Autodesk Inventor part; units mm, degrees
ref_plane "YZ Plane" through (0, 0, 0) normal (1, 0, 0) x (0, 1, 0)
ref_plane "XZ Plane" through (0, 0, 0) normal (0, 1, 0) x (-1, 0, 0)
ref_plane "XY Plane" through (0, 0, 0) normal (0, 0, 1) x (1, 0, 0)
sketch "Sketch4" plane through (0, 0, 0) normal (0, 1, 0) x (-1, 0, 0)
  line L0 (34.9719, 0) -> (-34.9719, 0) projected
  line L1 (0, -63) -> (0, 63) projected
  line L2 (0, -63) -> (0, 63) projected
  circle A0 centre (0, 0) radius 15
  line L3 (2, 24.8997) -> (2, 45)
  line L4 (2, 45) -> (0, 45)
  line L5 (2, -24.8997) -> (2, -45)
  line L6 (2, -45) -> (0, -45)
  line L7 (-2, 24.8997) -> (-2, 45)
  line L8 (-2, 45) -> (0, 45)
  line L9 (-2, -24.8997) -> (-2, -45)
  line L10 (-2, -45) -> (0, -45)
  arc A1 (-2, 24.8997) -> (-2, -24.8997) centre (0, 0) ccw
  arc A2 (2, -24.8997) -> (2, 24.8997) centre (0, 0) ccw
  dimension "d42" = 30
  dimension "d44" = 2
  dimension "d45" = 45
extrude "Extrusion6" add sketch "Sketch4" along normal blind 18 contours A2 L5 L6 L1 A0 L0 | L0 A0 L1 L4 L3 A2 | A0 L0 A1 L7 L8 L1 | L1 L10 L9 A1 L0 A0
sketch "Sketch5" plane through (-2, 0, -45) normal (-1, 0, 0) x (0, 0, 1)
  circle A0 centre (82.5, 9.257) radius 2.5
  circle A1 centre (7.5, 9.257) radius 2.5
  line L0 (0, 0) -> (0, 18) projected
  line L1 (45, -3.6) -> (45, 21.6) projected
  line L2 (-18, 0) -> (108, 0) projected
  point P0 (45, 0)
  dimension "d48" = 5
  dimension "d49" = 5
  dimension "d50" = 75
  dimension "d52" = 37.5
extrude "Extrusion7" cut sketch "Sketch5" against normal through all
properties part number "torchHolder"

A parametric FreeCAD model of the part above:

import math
import FreeCAD as App
import Part
import Sketcher
from FreeCAD import Vector

doc = App.newDocument("Part")
body = doc.addObject("PartDesign::Body", "Body")

# Sketch on XZ plane
sketch1 = body.newObject("Sketcher::SketchObject", "Sketch")
sketch1.AttachmentSupport = (doc.getObject("XZ_Plane"), [""])
sketch1.MapMode = "FlatFace"
sketch1.addGeometry([
    Part.ArcOfCircle(Part.Circle(Vector(0, 0, 0), Vector(0, 0, 1), 24.979893), math.radians(94.592267), math.radians(265.407733)),  # 0
    Part.LineSegment(Vector(-2, 24.8997, 0), Vector(-2, 45, 0)),  # 1
    Part.LineSegment(Vector(-2, 45, 0), Vector(2, 45, 0)),  # 2
    Part.LineSegment(Vector(2, 45, 0), Vector(2, 24.8997, 0)),  # 3
    Part.ArcOfCircle(Part.Circle(Vector(0, 0, 0), Vector(0, 0, 1), 24.979893), math.radians(-85.407733), math.radians(85.407733)),  # 4
    Part.LineSegment(Vector(2, -24.8997, 0), Vector(2, -45, 0)),  # 5
    Part.LineSegment(Vector(2, -45, 0), Vector(-2, -45, 0)),  # 6
    Part.LineSegment(Vector(-2, -45, 0), Vector(-2, -24.8997, 0)),  # 7
    Part.Circle(Vector(0, 0, 0), Vector(0, 0, 1), 15),  # 8
], False)
sketch1.addConstraint([
    Sketcher.Constraint("Coincident", 0, 1, 1, 1),
    Sketcher.Constraint("Coincident", 1, 2, 2, 1),
    Sketcher.Constraint("Coincident", 2, 2, 3, 1),
    Sketcher.Constraint("Coincident", 3, 2, 4, 2),
    Sketcher.Constraint("Coincident", 4, 1, 5, 1),
    Sketcher.Constraint("Coincident", 5, 2, 6, 1),
    Sketcher.Constraint("Coincident", 6, 2, 7, 1),
    Sketcher.Constraint("Coincident", 7, 2, 0, 2),
    Sketcher.Constraint("Vertical", 1),
    Sketcher.Constraint("Horizontal", 2),
    Sketcher.Constraint("Vertical", 3),
    Sketcher.Constraint("Vertical", 5),
    Sketcher.Constraint("Horizontal", 6),
    Sketcher.Constraint("Vertical", 7),
    Sketcher.Constraint("Coincident", 0, 3, -1, 1),
    Sketcher.Constraint("Coincident", 4, 3, -1, 1),
    Sketcher.Constraint("Coincident", 8, 3, -1, 1),
    Sketcher.Constraint("Equal", 0, 4),
    Sketcher.Constraint("Symmetric", 1, 2, 5, 2, -1, 1),
    Sketcher.Constraint("Horizontal", 0, 1, 3, 2),
    Sketcher.Constraint("Horizontal", 4, 1, 7, 2),
    Sketcher.Constraint("Diameter", 8, 30.0),
    Sketcher.Constraint("DistanceX", 0, 1, -1, 1, 2.0),
    Sketcher.Constraint("DistanceY", -1, 1, 1, 2, 45.0),
    Sketcher.Constraint("Radius", 0, 24.98),
])
pad1 = body.newObject("PartDesign::Pad", "Pad")
pad1.Profile = sketch1
pad1.Length = 18
pad1.Reversed = True

# Sketch on YZ plane
sketch2 = body.newObject("Sketcher::SketchObject", "Sketch001")
sketch2.AttachmentSupport = (doc.getObject("YZ_Plane"), [""])
sketch2.MapMode = "FlatFace"
sketch2.AttachmentOffset = App.Placement(Vector(0, 0, -2), App.Rotation())
sketch2.addGeometry([
    Part.Circle(Vector(9.257, 37.5, 0), Vector(0, 0, 1), 2.5),
    Part.Circle(Vector(9.257, -37.5, 0), Vector(0, 0, 1), 2.5),
], False)
sketch2.addConstraint([
    Sketcher.Constraint("Equal", 0, 1),
    Sketcher.Constraint("Symmetric", 0, 3, 1, 3, -1),
    Sketcher.Constraint("Diameter", 0, 5.0),
    Sketcher.Constraint("DistanceY", 1, 3, 0, 3, 75.0),
    Sketcher.Constraint("DistanceX", -1, 1, 0, 3, 9.257),
])
pocket1 = body.newObject("PartDesign::Pocket", "Pocket")
pocket1.Profile = sketch2
pocket1.Type = "ThroughAll"
pocket1.Reversed = True

doc.recompute()
